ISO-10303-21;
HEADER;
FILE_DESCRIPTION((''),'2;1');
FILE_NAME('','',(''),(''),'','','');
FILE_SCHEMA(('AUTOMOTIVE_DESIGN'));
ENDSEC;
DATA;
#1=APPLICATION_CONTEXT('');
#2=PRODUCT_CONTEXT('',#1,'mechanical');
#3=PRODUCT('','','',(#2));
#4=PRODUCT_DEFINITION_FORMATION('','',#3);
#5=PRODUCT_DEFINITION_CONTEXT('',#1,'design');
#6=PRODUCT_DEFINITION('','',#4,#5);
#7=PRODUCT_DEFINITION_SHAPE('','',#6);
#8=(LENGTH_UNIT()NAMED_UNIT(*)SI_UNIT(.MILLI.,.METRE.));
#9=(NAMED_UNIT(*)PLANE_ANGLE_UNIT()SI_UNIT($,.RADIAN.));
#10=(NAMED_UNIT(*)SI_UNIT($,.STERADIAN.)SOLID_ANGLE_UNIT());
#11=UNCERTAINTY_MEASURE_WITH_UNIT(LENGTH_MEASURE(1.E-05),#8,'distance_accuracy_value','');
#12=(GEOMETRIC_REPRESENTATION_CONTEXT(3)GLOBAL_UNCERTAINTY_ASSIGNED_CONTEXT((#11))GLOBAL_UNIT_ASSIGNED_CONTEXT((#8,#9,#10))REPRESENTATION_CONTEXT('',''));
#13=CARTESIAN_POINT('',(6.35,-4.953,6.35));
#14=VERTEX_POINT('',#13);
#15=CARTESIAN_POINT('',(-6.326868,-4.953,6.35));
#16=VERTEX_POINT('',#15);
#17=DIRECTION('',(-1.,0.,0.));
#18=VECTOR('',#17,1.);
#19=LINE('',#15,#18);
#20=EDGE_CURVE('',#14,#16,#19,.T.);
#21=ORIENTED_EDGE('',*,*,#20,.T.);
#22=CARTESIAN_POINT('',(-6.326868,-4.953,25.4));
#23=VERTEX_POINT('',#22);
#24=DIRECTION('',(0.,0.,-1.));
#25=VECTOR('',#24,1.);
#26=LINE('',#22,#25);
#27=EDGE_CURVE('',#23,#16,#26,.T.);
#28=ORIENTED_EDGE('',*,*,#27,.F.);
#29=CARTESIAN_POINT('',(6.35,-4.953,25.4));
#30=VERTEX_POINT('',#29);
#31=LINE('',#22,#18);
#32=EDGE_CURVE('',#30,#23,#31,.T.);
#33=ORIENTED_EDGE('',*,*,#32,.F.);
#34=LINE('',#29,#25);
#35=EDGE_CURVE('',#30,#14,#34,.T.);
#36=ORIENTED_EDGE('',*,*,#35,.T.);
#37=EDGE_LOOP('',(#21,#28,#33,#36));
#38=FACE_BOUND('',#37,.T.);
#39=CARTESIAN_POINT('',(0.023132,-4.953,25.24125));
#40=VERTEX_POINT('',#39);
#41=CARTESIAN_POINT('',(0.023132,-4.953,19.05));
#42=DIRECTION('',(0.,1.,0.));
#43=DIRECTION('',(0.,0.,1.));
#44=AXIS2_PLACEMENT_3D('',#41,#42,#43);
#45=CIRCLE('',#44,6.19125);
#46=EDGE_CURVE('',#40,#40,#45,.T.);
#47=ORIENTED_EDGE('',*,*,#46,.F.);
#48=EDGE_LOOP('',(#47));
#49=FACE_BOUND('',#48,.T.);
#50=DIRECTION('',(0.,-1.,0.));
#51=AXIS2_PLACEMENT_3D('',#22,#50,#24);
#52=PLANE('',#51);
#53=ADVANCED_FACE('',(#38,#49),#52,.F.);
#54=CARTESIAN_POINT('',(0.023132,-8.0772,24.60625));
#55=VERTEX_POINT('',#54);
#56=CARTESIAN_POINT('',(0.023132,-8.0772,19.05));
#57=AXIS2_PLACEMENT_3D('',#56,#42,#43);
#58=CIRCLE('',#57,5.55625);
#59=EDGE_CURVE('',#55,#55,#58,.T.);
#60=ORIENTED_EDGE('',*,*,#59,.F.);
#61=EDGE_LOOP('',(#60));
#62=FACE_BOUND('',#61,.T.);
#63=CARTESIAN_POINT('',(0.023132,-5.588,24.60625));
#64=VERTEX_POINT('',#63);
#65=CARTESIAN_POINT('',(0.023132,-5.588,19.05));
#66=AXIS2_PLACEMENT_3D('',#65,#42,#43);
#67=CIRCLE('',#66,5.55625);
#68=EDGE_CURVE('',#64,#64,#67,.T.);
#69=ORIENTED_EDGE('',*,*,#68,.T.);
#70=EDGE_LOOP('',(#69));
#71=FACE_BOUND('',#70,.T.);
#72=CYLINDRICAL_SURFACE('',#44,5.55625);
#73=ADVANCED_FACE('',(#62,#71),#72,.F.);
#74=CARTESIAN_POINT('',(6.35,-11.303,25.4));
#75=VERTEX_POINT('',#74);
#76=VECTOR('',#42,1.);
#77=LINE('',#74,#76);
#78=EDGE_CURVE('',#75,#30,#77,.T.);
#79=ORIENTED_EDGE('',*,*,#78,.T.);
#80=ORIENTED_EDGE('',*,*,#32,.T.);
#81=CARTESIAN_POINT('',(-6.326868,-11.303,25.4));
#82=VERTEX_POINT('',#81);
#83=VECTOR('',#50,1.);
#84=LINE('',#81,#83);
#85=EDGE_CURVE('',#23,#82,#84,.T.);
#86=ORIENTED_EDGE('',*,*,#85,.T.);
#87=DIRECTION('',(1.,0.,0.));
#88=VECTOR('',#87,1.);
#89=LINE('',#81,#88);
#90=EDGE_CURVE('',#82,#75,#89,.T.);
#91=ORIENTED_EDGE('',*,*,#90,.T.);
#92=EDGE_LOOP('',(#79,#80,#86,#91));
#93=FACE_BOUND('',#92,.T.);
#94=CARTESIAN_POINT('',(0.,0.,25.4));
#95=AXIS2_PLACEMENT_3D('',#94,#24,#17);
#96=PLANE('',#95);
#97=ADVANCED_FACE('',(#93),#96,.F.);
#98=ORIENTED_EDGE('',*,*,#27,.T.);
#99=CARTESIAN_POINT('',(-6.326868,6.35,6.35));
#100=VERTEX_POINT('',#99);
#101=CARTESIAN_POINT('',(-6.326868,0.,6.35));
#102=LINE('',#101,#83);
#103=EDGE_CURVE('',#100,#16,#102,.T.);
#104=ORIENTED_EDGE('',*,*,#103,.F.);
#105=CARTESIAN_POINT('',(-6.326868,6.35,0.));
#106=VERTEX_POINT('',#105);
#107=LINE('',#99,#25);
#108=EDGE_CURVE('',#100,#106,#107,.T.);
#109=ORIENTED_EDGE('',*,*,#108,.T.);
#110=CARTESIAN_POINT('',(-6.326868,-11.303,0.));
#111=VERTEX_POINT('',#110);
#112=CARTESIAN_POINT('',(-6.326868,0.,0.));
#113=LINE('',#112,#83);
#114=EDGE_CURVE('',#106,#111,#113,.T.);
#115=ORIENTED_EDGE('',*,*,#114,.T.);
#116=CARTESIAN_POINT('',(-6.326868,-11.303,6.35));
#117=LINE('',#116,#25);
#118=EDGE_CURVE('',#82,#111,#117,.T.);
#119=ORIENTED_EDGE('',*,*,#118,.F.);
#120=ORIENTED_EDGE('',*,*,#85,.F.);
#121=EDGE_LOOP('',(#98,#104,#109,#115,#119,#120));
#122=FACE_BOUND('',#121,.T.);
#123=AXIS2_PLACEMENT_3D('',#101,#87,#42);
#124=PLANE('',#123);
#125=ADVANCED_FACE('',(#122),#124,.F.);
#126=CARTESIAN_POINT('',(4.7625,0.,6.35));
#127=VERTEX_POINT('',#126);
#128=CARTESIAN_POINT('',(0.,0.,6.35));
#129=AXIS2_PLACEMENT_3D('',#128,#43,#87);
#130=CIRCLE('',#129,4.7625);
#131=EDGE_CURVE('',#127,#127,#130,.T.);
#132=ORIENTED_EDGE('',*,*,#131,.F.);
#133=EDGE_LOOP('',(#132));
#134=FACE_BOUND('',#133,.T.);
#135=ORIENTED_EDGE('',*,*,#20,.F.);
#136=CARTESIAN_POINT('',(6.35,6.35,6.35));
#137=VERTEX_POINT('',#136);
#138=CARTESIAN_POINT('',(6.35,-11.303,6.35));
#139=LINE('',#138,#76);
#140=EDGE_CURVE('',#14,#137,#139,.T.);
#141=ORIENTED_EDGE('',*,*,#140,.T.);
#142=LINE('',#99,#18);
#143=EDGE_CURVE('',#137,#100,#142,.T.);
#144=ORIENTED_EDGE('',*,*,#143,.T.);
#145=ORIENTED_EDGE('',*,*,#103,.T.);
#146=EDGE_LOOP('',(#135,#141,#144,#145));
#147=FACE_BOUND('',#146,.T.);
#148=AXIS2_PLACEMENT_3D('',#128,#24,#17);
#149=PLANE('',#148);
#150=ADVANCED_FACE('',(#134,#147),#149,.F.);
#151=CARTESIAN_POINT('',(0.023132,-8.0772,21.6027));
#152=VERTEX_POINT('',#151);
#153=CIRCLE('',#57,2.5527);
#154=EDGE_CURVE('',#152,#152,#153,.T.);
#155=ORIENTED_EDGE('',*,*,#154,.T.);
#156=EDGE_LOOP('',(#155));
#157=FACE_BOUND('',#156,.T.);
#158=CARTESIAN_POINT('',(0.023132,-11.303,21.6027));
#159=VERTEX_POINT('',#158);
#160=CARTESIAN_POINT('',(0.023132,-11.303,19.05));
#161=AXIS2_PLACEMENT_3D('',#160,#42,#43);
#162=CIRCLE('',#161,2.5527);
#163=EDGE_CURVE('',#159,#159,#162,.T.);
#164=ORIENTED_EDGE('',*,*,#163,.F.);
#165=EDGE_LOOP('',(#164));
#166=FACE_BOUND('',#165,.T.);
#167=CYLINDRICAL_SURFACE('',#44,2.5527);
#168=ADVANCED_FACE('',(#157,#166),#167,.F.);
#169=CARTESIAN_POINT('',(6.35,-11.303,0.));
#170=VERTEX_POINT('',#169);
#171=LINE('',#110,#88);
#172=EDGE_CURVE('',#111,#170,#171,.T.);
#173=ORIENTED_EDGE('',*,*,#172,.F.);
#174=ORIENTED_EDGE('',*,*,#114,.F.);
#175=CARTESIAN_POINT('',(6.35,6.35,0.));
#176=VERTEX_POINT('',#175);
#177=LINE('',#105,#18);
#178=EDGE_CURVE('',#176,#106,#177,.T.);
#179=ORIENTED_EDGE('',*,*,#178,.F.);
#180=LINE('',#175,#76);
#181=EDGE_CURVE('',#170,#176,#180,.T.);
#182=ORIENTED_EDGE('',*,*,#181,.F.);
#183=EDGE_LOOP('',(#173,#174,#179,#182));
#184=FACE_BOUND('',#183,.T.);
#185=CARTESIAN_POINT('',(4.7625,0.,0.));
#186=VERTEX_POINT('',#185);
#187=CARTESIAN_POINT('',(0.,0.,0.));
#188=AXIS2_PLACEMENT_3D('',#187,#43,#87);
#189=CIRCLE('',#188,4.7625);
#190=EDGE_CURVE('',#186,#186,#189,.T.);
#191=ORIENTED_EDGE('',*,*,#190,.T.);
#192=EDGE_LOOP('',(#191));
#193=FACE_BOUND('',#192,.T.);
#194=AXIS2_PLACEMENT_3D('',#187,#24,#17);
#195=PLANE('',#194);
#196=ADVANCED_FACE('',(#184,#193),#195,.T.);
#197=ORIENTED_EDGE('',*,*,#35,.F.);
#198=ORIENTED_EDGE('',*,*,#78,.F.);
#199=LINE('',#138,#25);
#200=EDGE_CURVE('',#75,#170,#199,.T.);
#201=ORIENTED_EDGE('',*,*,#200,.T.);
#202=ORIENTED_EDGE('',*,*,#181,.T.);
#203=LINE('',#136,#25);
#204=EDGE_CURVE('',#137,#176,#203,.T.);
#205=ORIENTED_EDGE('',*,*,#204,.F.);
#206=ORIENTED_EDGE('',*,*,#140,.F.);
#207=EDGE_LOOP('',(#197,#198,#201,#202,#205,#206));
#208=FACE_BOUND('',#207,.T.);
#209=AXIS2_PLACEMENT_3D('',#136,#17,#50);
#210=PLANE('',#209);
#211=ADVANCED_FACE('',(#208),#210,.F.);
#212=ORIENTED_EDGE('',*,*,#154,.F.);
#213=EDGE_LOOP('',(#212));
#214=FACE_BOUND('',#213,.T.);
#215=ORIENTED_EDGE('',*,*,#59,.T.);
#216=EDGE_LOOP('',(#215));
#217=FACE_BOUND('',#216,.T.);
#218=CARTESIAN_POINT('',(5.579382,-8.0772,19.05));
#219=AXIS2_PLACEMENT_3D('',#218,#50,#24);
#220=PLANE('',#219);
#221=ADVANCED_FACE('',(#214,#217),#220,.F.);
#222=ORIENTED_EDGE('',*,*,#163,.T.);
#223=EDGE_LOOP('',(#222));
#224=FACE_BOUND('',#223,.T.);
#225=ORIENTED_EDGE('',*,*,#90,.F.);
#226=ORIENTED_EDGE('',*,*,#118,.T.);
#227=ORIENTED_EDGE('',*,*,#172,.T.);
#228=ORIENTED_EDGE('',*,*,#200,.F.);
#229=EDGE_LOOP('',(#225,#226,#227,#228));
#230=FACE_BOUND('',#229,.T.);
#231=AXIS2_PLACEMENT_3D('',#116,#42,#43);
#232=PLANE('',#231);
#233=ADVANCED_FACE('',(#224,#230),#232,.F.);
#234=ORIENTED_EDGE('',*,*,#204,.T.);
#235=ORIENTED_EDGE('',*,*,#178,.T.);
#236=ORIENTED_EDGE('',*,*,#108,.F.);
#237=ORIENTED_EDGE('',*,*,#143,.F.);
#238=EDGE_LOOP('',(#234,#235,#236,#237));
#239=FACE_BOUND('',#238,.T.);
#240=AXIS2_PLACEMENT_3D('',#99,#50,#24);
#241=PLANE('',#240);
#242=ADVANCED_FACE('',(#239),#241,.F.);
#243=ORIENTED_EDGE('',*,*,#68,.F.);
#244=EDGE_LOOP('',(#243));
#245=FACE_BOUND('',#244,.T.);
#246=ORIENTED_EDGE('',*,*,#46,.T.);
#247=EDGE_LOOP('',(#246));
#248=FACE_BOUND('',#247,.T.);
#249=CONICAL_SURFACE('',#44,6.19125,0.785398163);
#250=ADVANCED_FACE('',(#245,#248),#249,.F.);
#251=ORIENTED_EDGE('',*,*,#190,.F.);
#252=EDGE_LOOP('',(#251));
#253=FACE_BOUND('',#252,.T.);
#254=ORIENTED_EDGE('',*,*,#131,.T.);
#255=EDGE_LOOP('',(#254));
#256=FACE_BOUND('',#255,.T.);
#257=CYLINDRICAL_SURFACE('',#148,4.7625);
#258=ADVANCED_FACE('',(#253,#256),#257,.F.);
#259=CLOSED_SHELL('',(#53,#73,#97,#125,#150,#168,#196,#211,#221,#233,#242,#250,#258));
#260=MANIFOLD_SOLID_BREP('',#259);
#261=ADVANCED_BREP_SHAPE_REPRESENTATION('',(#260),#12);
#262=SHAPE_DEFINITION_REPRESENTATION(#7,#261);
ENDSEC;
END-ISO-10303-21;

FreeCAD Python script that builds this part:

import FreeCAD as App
import Part
import Sketcher

V = App.Vector
Q = App.Units.Quantity


def add_polygon(sketch, points):
    """Adds a closed chain of lines whose ends are joined by coincident constraints."""
    first, n = sketch.GeometryCount, len(points)
    for a, b in zip(points, points[1:] + points[:1]):
        sketch.addGeometry(Part.LineSegment(App.Vector(*a, 0), App.Vector(*b, 0)), False)
    for i in range(n):
        sketch.addConstraint(Sketcher.Constraint("Coincident", first + i, 2, first + (i + 1) % n, 1))

doc = App.newDocument("Part")
body = doc.addObject("PartDesign::Body", "Body")

# Sketch on XY plane
sketch1 = doc.addObject("Sketcher::SketchObject", "Sketch")
body.addObject(sketch1)
sketch1.AttachmentSupport = (doc.XY_Plane, [""])
sketch1.MapMode = "FlatFace"
add_polygon(sketch1, [(-6.3, -11.3), (6.3, -11.3), (6.3, 6.3), (-6.3, 6.3)])  # lines 0-3
sketch1.addGeometry(Part.Circle(V(0, 0, 0), V(0, 0, 1), 4.8), False)  # 4
sketch1.addConstraint([
    Sketcher.Constraint("Horizontal", 0),
    Sketcher.Constraint("Vertical", 1),
    Sketcher.Constraint("Horizontal", 2),
    Sketcher.Constraint("Vertical", 3),
    Sketcher.Constraint("Coincident", 4, 3, -1, 1),
    Sketcher.Constraint("Diameter", 4, Q("0.375 in")),
    Sketcher.Constraint("DistanceY", 1, 1, 1, 2, Q("0.695 in")),
    Sketcher.Constraint("DistanceX", -1, 1, 0, 2, Q("0.25 in")),
    Sketcher.Constraint("DistanceY", -1, 1, 1, 2, Q("0.25 in")),
    Sketcher.Constraint("DistanceX", 0, 1, 0, 2, 12.676868),
])
pad1 = doc.addObject("PartDesign::Pad", "Pad")
body.addObject(pad1)
pad1.Profile = sketch1
pad1.Length = Q("0.25 in")

# Sketch on XY plane
sketch2 = doc.addObject("Sketcher::SketchObject", "Sketch001")
body.addObject(sketch2)
sketch2.AttachmentSupport = (doc.XY_Plane, [""])
sketch2.MapMode = "FlatFace"
sketch2.AttachmentOffset = App.Placement(V(0, 0, 0.25 * 25.4), App.Rotation())
add_polygon(sketch2, [(-6, -5), (-6, -11), (6, -11), (6, -5)])  # lines 0-3
sketch2.addConstraint([
    Sketcher.Constraint("Vertical", 0),
    Sketcher.Constraint("Horizontal", 1),
    Sketcher.Constraint("Vertical", 2),
    Sketcher.Constraint("Horizontal", 3),
    Sketcher.Constraint("DistanceY", 0, 2, 0, 1, Q("0.25 in")),
    Sketcher.Constraint("DistanceX", -1, 1, 1, 2, Q("0.25 in")),
    Sketcher.Constraint("DistanceY", 0, 2, -1, 1, Q("0.445 in")),
    Sketcher.Constraint("DistanceX", 1, 1, 1, 2, 12.676868),
])
pad2 = doc.addObject("PartDesign::Pad", "Pad001")
body.addObject(pad2)
pad2.Profile = sketch2
pad2.Length = Q("0.75 in")

# Sketch on YZ plane
sketch3 = doc.addObject("Sketcher::SketchObject", "Sketch002")
body.addObject(sketch3)
sketch3.AttachmentSupport = (doc.YZ_Plane, [""])
sketch3.MapMode = "FlatFace"
sketch3.AttachmentOffset = App.Placement(V(0, 0, 0.023132), App.Rotation())
add_polygon(sketch3, [(-11.3, 19.1), (-5, 19.1), (-5, 25.2), (-5.6, 24.6), (-8.1, 24.6), (-8.1, 21.6), (-11.3, 21.6)])  # lines 0-6
sketch3.addGeometry(Part.LineSegment(V(-5, 19.1, 0), V(-11.3, 19.1, 0)), True)  # axis
sketch3.addConstraint([
    Sketcher.Constraint("Horizontal", 0),
    Sketcher.Constraint("Vertical", 1),
    Sketcher.Constraint("Horizontal", 3),
    Sketcher.Constraint("Vertical", 4),
    Sketcher.Constraint("Horizontal", 5),
    Sketcher.Constraint("Vertical", 6),
    Sketcher.Constraint("Horizontal", 7),
    Sketcher.Constraint("Coincident", 7, 1, 0, 2),
    Sketcher.Constraint("Vertical", 5, 2, 7, 2),
    Sketcher.Constraint("Angle", 2, Q("-135 deg")),
    Sketcher.Constraint("DistanceX", 0, 1, 0, 2, Q("0.25 in")),
    Sketcher.Constraint("DistanceX", 3, 2, 3, 1, Q("0.098 in")),
    Sketcher.Constraint("DistanceX", 5, 2, 5, 1, Q("0.127 in")),
    Sketcher.Constraint("DistanceY", -1, 1, 0, 2, Q("0.75 in")),
    Sketcher.Constraint("DistanceX", 2, 2, -1, 1, Q("0.22 in")),
    Sketcher.Constraint("DistanceY", 6, 2, 6, 1, Q("0.1005 in")),
    Sketcher.Constraint("DistanceY", -1, 1, 2, 2, Q("0.96875 in")),
])
groove = doc.addObject("PartDesign::Groove", "Groove")
body.addObject(groove)
groove.Profile = sketch3
groove.ReferenceAxis = (sketch3, ["Axis0"])
groove.Angle = 360

doc.recompute()
